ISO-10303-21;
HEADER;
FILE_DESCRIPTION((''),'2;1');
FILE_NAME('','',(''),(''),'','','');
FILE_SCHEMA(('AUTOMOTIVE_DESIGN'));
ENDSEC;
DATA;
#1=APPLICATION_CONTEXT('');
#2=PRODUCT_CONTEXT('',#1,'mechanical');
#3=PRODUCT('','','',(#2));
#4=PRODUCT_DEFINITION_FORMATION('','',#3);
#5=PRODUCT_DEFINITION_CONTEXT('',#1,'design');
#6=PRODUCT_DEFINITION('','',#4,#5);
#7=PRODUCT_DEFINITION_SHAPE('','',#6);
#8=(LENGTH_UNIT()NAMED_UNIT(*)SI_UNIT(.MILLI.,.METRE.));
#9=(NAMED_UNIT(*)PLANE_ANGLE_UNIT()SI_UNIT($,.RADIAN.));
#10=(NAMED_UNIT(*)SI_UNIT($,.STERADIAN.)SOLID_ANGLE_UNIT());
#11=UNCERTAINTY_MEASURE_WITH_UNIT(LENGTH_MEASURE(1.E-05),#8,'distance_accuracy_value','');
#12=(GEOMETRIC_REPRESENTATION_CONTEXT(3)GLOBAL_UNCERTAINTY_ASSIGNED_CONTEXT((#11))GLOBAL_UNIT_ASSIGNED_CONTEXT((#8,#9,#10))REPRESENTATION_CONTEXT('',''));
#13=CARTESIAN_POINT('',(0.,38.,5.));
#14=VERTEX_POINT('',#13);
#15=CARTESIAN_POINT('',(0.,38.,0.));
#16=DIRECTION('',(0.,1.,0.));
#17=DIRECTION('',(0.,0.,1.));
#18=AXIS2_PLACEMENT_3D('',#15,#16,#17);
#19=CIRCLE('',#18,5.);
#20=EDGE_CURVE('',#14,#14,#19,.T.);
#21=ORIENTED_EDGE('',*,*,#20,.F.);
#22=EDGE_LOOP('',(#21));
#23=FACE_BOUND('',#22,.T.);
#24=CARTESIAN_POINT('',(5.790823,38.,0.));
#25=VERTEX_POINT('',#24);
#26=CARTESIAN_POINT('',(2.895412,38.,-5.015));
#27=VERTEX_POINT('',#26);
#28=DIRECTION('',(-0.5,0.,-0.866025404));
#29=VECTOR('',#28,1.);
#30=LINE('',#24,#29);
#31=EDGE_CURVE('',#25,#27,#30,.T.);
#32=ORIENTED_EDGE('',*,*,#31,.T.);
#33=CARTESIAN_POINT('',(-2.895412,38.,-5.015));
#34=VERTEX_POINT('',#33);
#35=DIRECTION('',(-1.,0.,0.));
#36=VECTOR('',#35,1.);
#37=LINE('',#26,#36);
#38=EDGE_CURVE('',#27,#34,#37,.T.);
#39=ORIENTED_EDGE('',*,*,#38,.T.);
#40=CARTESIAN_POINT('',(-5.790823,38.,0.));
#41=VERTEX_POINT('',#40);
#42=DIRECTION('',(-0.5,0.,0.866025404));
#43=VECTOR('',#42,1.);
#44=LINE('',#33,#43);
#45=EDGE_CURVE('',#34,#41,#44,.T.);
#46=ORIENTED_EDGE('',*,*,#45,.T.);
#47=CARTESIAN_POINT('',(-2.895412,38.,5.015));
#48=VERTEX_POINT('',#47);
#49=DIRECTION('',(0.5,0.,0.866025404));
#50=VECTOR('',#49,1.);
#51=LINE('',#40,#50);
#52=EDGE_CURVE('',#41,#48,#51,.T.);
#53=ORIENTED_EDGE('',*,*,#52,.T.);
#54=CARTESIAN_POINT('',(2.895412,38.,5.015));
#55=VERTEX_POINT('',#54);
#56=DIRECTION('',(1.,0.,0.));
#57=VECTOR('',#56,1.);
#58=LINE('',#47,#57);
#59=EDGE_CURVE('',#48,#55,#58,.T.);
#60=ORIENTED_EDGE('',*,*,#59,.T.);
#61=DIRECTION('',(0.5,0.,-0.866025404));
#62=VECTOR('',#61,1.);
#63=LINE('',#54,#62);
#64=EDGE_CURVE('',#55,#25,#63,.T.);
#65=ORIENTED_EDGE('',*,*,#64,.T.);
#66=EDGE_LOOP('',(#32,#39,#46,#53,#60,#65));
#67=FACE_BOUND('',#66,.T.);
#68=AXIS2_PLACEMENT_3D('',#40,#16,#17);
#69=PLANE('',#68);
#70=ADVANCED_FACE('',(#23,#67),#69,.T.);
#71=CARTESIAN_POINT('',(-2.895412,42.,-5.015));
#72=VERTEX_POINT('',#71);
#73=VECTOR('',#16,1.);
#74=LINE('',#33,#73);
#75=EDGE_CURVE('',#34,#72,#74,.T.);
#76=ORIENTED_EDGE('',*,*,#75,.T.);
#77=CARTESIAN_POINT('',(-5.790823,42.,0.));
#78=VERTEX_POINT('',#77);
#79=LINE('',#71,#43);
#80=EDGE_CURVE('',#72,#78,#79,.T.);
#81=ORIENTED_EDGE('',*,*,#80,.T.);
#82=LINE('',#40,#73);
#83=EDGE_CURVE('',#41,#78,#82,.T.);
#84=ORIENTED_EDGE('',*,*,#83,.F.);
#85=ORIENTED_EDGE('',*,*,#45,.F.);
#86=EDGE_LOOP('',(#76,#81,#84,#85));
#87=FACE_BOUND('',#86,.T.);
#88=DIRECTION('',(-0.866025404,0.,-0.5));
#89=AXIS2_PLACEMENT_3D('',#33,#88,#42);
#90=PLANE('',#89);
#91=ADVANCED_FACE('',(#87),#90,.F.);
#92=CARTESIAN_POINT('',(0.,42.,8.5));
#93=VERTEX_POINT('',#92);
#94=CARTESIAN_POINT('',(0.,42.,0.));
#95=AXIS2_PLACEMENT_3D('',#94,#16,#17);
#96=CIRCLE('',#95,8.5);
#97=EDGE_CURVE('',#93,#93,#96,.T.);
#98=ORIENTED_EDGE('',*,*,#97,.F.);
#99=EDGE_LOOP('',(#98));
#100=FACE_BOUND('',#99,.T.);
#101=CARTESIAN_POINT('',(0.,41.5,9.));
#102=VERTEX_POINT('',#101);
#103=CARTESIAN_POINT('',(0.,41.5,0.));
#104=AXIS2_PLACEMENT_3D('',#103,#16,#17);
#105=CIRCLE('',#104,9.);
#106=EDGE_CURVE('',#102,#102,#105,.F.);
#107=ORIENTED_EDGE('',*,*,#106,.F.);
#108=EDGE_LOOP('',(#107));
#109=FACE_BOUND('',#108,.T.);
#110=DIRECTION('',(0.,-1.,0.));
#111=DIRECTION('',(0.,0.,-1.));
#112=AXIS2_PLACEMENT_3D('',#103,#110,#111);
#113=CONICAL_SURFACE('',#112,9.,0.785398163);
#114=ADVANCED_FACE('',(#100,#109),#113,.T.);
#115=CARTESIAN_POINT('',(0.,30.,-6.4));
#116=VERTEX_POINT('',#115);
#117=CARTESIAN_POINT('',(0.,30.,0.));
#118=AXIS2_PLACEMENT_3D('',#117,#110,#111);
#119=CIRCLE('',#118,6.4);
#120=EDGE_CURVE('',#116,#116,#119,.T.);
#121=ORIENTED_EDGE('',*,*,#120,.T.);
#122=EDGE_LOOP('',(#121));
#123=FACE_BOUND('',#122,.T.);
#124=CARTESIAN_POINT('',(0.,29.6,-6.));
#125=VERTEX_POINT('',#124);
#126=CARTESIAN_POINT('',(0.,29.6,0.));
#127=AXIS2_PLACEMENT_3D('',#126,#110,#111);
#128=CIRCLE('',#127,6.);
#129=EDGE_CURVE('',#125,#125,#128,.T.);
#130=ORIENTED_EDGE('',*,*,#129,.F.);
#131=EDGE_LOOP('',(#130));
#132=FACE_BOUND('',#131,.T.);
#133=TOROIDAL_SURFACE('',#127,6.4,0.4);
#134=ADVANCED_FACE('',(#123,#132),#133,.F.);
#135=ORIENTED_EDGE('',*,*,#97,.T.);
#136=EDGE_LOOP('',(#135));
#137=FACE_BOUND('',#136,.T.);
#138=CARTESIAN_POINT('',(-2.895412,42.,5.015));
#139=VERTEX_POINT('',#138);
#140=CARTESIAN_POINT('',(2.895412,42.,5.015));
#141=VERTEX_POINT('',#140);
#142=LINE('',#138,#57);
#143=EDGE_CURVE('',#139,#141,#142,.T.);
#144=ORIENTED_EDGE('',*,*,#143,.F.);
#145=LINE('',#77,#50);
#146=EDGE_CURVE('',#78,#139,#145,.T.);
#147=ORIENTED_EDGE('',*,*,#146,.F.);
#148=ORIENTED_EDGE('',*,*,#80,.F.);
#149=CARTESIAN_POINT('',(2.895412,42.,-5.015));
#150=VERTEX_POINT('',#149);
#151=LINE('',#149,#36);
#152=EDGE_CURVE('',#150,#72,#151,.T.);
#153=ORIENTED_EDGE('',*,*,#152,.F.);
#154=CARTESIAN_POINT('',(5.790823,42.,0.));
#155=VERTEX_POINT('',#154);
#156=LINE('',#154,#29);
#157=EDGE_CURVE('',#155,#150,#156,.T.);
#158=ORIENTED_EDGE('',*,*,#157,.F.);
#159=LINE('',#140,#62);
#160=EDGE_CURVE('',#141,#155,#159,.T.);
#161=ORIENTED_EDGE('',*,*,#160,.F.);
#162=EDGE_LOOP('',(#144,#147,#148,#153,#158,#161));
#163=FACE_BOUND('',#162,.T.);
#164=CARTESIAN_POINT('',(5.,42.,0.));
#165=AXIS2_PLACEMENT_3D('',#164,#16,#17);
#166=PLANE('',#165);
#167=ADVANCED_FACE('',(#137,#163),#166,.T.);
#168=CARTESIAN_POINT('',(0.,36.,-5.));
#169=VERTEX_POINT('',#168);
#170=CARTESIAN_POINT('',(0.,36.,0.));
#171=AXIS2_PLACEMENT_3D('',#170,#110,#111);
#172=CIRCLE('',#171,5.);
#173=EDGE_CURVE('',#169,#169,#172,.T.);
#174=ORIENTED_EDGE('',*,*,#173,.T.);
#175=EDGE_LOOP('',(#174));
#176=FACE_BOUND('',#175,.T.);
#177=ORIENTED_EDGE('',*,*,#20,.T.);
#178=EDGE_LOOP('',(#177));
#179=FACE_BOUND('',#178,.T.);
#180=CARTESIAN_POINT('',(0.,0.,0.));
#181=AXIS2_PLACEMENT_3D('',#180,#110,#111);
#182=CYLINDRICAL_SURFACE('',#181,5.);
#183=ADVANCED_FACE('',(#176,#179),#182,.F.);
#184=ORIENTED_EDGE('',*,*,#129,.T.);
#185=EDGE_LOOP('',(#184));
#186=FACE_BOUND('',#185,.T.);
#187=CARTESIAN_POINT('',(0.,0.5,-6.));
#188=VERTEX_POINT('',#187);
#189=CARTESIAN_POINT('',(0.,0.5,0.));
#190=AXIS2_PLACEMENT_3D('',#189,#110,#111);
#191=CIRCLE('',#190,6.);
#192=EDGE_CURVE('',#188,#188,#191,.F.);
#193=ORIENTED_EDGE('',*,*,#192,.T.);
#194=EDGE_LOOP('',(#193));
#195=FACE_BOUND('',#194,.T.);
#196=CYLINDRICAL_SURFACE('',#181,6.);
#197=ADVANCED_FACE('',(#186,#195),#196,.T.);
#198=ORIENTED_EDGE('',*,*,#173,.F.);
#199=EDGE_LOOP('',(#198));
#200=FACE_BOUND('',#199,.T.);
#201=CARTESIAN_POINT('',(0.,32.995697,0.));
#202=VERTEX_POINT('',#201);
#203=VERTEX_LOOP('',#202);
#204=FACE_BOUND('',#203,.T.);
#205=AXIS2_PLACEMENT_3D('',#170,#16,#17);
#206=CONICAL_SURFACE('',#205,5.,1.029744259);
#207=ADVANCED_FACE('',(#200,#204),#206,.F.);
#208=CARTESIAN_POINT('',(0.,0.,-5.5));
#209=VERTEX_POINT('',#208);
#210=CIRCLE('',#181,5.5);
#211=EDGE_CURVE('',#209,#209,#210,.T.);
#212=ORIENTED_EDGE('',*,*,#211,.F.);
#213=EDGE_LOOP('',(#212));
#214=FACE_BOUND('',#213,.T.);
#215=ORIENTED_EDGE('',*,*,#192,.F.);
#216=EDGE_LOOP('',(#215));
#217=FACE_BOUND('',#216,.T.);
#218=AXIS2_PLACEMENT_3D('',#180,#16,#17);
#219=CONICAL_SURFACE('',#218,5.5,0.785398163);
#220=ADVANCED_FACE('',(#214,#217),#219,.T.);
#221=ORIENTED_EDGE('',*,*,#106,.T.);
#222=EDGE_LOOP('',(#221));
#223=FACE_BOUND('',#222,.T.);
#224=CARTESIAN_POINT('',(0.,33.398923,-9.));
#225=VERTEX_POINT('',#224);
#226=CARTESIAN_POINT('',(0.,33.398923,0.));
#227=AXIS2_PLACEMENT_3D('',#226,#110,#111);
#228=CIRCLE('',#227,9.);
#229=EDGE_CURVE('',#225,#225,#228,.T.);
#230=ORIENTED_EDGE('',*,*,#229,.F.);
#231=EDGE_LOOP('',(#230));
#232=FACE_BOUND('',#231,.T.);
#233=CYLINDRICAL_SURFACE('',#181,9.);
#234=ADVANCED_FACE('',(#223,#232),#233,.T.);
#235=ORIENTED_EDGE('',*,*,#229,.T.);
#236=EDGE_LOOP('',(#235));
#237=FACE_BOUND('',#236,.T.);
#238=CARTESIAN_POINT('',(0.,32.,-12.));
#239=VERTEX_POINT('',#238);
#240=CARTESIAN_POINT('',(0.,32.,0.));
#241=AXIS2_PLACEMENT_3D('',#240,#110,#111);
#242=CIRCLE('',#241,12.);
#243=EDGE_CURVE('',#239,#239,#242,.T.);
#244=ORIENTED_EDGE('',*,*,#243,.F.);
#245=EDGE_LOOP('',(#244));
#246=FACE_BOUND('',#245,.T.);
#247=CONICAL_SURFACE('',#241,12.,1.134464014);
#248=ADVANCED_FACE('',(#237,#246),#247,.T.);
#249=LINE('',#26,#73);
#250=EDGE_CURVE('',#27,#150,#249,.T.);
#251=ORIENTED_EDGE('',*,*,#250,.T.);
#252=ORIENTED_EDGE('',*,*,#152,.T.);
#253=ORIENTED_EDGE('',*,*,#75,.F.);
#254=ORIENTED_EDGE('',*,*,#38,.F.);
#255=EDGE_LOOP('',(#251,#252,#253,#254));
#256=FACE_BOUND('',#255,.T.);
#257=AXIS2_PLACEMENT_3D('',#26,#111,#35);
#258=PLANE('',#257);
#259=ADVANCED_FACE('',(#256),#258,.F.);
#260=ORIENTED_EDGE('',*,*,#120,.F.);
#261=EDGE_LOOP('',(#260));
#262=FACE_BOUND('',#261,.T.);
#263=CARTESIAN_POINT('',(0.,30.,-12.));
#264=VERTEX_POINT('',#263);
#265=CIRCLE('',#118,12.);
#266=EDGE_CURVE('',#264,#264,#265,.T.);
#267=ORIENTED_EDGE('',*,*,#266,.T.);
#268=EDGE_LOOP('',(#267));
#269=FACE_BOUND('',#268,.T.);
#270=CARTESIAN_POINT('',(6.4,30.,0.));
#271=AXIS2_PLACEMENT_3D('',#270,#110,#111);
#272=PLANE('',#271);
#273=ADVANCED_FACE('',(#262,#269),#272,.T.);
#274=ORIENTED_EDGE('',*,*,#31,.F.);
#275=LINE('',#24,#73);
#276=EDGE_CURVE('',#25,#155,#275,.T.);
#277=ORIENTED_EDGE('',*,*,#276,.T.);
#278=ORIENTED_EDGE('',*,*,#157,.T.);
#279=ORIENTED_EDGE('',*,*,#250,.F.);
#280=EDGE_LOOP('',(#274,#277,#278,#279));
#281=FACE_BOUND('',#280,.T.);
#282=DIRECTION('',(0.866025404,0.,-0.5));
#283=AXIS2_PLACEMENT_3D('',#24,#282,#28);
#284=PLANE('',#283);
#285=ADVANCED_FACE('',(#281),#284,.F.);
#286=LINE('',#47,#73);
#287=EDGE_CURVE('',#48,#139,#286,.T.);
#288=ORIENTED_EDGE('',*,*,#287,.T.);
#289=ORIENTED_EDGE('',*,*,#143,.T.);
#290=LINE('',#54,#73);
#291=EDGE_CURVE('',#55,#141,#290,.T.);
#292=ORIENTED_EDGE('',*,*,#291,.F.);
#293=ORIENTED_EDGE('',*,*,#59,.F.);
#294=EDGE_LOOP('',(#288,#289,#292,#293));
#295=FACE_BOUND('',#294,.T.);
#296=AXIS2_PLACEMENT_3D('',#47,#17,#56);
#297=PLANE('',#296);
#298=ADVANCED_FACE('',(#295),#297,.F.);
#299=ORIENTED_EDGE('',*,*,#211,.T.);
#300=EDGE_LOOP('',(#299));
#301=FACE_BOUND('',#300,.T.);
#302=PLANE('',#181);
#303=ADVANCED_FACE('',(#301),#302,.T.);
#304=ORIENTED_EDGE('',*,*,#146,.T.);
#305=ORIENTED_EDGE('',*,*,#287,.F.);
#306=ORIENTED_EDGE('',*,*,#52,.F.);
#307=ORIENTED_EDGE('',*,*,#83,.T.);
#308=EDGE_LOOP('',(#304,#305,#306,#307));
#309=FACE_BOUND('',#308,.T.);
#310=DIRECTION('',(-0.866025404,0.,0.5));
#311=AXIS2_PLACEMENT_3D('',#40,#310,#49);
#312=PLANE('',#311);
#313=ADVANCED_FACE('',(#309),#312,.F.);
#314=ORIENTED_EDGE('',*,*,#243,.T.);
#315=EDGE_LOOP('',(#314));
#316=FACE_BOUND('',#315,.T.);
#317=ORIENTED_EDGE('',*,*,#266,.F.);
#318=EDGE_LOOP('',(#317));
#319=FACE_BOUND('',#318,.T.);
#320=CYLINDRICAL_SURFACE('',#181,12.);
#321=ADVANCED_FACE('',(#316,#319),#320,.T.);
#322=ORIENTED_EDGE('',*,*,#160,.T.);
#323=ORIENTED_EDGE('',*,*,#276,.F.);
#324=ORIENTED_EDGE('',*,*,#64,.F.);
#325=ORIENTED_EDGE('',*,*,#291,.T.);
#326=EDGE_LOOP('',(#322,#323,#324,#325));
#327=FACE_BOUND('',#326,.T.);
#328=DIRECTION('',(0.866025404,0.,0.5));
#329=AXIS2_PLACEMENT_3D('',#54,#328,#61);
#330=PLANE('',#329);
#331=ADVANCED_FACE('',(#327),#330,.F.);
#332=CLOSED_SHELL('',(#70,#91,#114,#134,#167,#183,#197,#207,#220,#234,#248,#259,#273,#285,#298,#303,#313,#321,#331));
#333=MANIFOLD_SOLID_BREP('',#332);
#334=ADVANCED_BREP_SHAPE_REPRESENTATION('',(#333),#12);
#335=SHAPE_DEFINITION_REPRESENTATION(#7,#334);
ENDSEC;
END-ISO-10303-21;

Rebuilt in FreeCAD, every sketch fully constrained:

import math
import FreeCAD as App
import Part
import Sketcher
from FreeCAD import Vector
Q = App.Units.Quantity


def edges_at(feature, points):
    """Names of the edges that pass closest to the given points."""
    edges = feature.Shape.Edges
    near = lambda p: min(range(len(edges)), key=lambda i: edges[i].distToShape(Part.Vertex(*p))[0])
    return sorted({f"Edge{near(p) + 1}" for p in points})


def add_polygon(sketch, points):
    """Adds a closed chain of lines whose ends are joined by coincident constraints."""
    first, n = sketch.GeometryCount, len(points)
    for a, b in zip(points, points[1:] + points[:1]):
        sketch.addGeometry(Part.LineSegment(App.Vector(*a, 0), App.Vector(*b, 0)), False)
    for i in range(n):
        sketch.addConstraint(Sketcher.Constraint("Coincident", first + i, 2, first + (i + 1) % n, 1))

doc = App.newDocument("Part")
body = doc.addObject("PartDesign::Body", "Body")

# Sketch on XY plane
sketch1 = doc.addObject("Sketcher::SketchObject", "Sketch")
body.addObject(sketch1)
sketch1.AttachmentSupport = (doc.XY_Plane, [""])
sketch1.MapMode = "FlatFace"
sketch1.addGeometry(Part.LineSegment(Vector(9, 42, 0), Vector(5, 42, 0)), False)
sketch1.addGeometry(Part.LineSegment(Vector(5, 42, 0), Vector(5, 36, 0)), False)
sketch1.addGeometry(Part.LineSegment(Vector(5, 36, 0), Vector(0, 33, 0)), False)
sketch1.addGeometry(Part.LineSegment(Vector(0, 33, 0), Vector(0, 0, 0)), False)
sketch1.addGeometry(Part.LineSegment(Vector(0, 0, 0), Vector(6, 0, 0)), False)
sketch1.addGeometry(Part.LineSegment(Vector(6, 0, 0), Vector(6, 29.6, 0)), False)
sketch1.addGeometry(Part.ArcOfCircle(Part.Circle(Vector(6.4, 29.6, 0), Vector(0, 0, 1), 0.4), math.radians(90), math.radians(180)), False)
sketch1.addGeometry(Part.LineSegment(Vector(6.4, 30, 0), Vector(12, 30, 0)), False)
sketch1.addGeometry(Part.LineSegment(Vector(12, 30, 0), Vector(12, 32, 0)), False)
sketch1.addGeometry(Part.LineSegment(Vector(12, 32, 0), Vector(9, 33.4, 0)), False)
sketch1.addGeometry(Part.LineSegment(Vector(9, 33.4, 0), Vector(9, 42, 0)), False)
sketch1.addConstraint(Sketcher.Constraint("Coincident", 0, 2, 1, 1))
sketch1.addConstraint(Sketcher.Constraint("Coincident", 1, 2, 2, 1))
sketch1.addConstraint(Sketcher.Constraint("Coincident", 2, 2, 3, 1))
sketch1.addConstraint(Sketcher.Constraint("Coincident", 3, 2, 4, 1))
sketch1.addConstraint(Sketcher.Constraint("Coincident", 4, 2, 5, 1))
sketch1.addConstraint(Sketcher.Constraint("Tangent", 5, 2, 6, 2))
sketch1.addConstraint(Sketcher.Constraint("Tangent", 6, 1, 7, 1))
sketch1.addConstraint(Sketcher.Constraint("Coincident", 7, 2, 8, 1))
sketch1.addConstraint(Sketcher.Constraint("Coincident", 8, 2, 9, 1))
sketch1.addConstraint(Sketcher.Constraint("Coincident", 9, 2, 10, 1))
sketch1.addConstraint(Sketcher.Constraint("Coincident", 10, 2, 0, 1))
sketch1.addConstraint(Sketcher.Constraint("Horizontal", 0))
sketch1.addConstraint(Sketcher.Constraint("Vertical", 1))
sketch1.addConstraint(Sketcher.Constraint("Vertical", 3))
sketch1.addConstraint(Sketcher.Constraint("Horizontal", 4))
sketch1.addConstraint(Sketcher.Constraint("Vertical", 5))
sketch1.addConstraint(Sketcher.Constraint("Horizontal", 7))
sketch1.addConstraint(Sketcher.Constraint("Vertical", 8))
sketch1.addConstraint(Sketcher.Constraint("Vertical", 10))
sketch1.addConstraint(Sketcher.Constraint("Coincident", 3, 2, -1, 1))
sketch1.addConstraint(Sketcher.Constraint("Equal", 4, 1))
sketch1.addConstraint(Sketcher.Constraint("Radius", 6, Q("0.4 mm")))
sketch1.addConstraint(Sketcher.Constraint("DistanceX", 0, 2, 0, 1, Q("4 mm")))
sketch1.addConstraint(Sketcher.Constraint("DistanceX", 4, 1, 4, 2, Q("6 mm")))
sketch1.addConstraint(Sketcher.Constraint("DistanceY", 8, 1, 8, 2, Q("2 mm")))
sketch1.addConstraint(Sketcher.Constraint("Angle", 2, Q("-149 deg")))
sketch1.addConstraint(Sketcher.Constraint("Angle", 9, Q("155 deg")))
sketch1.addConstraint(Sketcher.Constraint("DistanceX", 7, 1, 7, 2, Q("5.6 mm")))
sketch1.addConstraint(Sketcher.Constraint("DistanceY", 5, 1, 5, 2, Q("29.6 mm")))
sketch1.addConstraint(Sketcher.Constraint("DistanceX", -1, 1, 0, 2, Q("5 mm")))
sketch1.addConstraint(Sketcher.Constraint("DistanceY", -1, 1, 0, 2, Q("42 mm")))
revolution = doc.addObject("PartDesign::Revolution", "Revolution")
body.addObject(revolution)
revolution.Profile = sketch1
revolution.ReferenceAxis = (sketch1, ["V_Axis"])
revolution.Angle = 360

# Sketch on XZ plane
sketch2 = doc.addObject("Sketcher::SketchObject", "Sketch001")
body.addObject(sketch2)
sketch2.AttachmentSupport = (doc.XZ_Plane, [""])
sketch2.MapMode = "FlatFace"
sketch2.AttachmentOffset = App.Placement(Vector(0, 0, -42), App.Rotation())
add_polygon(sketch2, [(-6, 0), (-3, 5), (3, 5), (6, 0), (3, -5), (-3, -5)])  # lines 0-5
sketch2.addConstraint(Sketcher.Constraint("Horizontal", 1))
sketch2.addConstraint(Sketcher.Constraint("Horizontal", 4))
sketch2.addConstraint(Sketcher.Constraint("Symmetric", 0, 2, 3, 2, -1, 1))
sketch2.addConstraint(Sketcher.Constraint("Symmetric", 2, 2, 5, 2, -1, 1))
sketch2.addConstraint(Sketcher.Constraint("PointOnObject", 2, 2, -1))
sketch2.addConstraint(Sketcher.Constraint("Parallel", 2, 5))
sketch2.addConstraint(Sketcher.Constraint("Vertical", 1, 2, 3, 2))
sketch2.addConstraint(Sketcher.Constraint("Angle", 0, Q("60 deg")))
sketch2.addConstraint(Sketcher.Constraint("DistanceY", 3, 2, 1, 2, Q("10.03 mm")))
sketch2.addConstraint(Sketcher.Constraint("DistanceX", 1, 1, 1, 2, Q("5.790823 mm")))
pocket1 = doc.addObject("PartDesign::Pocket", "Pocket")
body.addObject(pocket1)
pocket1.Profile = sketch2
pocket1.Length = 4
pocket1.Reversed = True
doc.recompute()

chamfer = doc.addObject("PartDesign::Chamfer", "Chamfer")
body.addObject(chamfer)
chamfer.Base = (pocket1, edges_at(pocket1, [(0, 42, 9)]))
chamfer.Size = 0.5
doc.recompute()

chamfer2 = doc.addObject("PartDesign::Chamfer", "Chamfer001")
body.addObject(chamfer2)
chamfer2.Base = (chamfer, edges_at(chamfer, [(0, 0, 6)]))
chamfer2.Size = 0.5

doc.recompute()
